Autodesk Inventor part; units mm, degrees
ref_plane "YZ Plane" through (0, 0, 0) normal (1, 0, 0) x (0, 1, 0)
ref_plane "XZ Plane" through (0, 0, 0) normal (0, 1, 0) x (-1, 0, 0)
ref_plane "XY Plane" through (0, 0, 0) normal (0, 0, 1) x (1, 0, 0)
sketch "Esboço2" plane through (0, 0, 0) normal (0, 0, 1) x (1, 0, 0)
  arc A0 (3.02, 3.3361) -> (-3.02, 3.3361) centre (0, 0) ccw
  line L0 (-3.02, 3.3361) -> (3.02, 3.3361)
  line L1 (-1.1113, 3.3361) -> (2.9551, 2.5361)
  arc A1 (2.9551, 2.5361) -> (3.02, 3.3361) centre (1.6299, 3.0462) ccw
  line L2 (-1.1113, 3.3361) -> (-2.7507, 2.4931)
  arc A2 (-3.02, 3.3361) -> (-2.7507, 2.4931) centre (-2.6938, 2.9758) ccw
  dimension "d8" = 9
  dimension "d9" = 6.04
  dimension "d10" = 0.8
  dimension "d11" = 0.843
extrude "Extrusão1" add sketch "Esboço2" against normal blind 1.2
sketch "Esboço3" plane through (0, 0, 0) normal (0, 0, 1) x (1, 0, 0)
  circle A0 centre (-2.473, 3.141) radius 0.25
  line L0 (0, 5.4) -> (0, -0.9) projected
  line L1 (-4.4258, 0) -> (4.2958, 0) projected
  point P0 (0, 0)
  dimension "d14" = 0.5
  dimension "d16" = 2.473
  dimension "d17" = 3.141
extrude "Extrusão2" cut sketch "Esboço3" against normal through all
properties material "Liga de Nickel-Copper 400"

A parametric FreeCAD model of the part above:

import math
import FreeCAD as App
import Part
import Sketcher

V = App.Vector
Q = App.Units.Quantity

doc = App.newDocument("Part")
body = doc.addObject("PartDesign::Body", "Body")

sketch1 = doc.addObject("Sketcher::SketchObject", "Sketch")
body.addObject(sketch1)
sketch1.AttachmentSupport = (doc.XY_Plane, [""])
sketch1.MapMode = "FlatFace"
sketch1.addGeometry(Part.ArcOfCircle(Part.Circle(V(0, 0, 0), V(0, 0, 1), 4.5), math.radians(48), math.radians(132)), False)
sketch1.addGeometry(Part.ArcOfCircle(Part.Circle(V(-2.69, 2.98, 0), V(0, 0, 1), 0.49), math.radians(132), math.radians(263)), False)
sketch1.addGeometry(Part.LineSegment(V(-2.75, 2.49, 0), V(-1.11, 3.34, 0)), False)
sketch1.addGeometry(Part.LineSegment(V(-1.11, 3.34, 0), V(2.96, 2.54, 0)), False)
sketch1.addGeometry(Part.ArcOfCircle(Part.Circle(V(1.63, 3.05, 0), V(0, 0, 1), 1.42), math.radians(-21), math.radians(12)), False)
sketch1.addConstraint(Sketcher.Constraint("Tangent", 0, 2, 1, 1))
sketch1.addConstraint(Sketcher.Constraint("Coincident", 1, 2, 2, 1))
sketch1.addConstraint(Sketcher.Constraint("Coincident", 2, 2, 3, 1))
sketch1.addConstraint(Sketcher.Constraint("Coincident", 3, 2, 4, 1))
sketch1.addConstraint(Sketcher.Constraint("Coincident", 4, 2, 0, 1))
sketch1.addConstraint(Sketcher.Constraint("Coincident", 0, 3, -1, 1))
sketch1.addConstraint(Sketcher.Constraint("Horizontal", 0, 2, 2, 2))
sketch1.addConstraint(Sketcher.Constraint("Horizontal", 2, 2, 4, 2))
sketch1.addConstraint(Sketcher.Constraint("Radius", 0, Q("4.5 mm")))
sketch1.addConstraint(Sketcher.Constraint("DistanceY", 3, 2, 2, 2, Q("0.8 mm")))
sketch1.addConstraint(Sketcher.Constraint("Radius", 4, Q("1.42 mm")))
sketch1.addConstraint(Sketcher.Constraint("Radius", 1, Q("0.486 mm")))
sketch1.addConstraint(Sketcher.Constraint("DistanceY", 1, 2, 0, 2, Q("0.843 mm")))
sketch1.addConstraint(Sketcher.Constraint("Angle", 3, Q("-11.13 deg")))
sketch1.addConstraint(Sketcher.Constraint("DistanceX", -1, 1, 4, 3, Q("1.63 mm")))
sketch1.addConstraint(Sketcher.Constraint("DistanceX", 0, 2, -1, 1, Q("3.02 mm")))
pad1 = doc.addObject("PartDesign::Pad", "Pad")
body.addObject(pad1)
pad1.Profile = sketch1
pad1.Length = 1.2
pad1.Reversed = True

sketch2 = doc.addObject("Sketcher::SketchObject", "Sketch001")
body.addObject(sketch2)
sketch2.AttachmentSupport = (doc.XY_Plane, [""])
sketch2.MapMode = "FlatFace"
sketch2.addGeometry(Part.Circle(V(-2.47, 3.14, 0), V(0, 0, 1), 0.25), False)
sketch2.addConstraint(Sketcher.Constraint("Diameter", 0, Q("0.5 mm")))
sketch2.addConstraint(Sketcher.Constraint("DistanceX", 0, 3, -1, 1, Q("2.473 mm")))
sketch2.addConstraint(Sketcher.Constraint("DistanceY", -1, 1, 0, 3, Q("3.141 mm")))
pocket1 = doc.addObject("PartDesign::Pocket", "Pocket")
body.addObject(pocket1)
pocket1.Profile = sketch2
pocket1.Type = "ThroughAll"

doc.recompute()
